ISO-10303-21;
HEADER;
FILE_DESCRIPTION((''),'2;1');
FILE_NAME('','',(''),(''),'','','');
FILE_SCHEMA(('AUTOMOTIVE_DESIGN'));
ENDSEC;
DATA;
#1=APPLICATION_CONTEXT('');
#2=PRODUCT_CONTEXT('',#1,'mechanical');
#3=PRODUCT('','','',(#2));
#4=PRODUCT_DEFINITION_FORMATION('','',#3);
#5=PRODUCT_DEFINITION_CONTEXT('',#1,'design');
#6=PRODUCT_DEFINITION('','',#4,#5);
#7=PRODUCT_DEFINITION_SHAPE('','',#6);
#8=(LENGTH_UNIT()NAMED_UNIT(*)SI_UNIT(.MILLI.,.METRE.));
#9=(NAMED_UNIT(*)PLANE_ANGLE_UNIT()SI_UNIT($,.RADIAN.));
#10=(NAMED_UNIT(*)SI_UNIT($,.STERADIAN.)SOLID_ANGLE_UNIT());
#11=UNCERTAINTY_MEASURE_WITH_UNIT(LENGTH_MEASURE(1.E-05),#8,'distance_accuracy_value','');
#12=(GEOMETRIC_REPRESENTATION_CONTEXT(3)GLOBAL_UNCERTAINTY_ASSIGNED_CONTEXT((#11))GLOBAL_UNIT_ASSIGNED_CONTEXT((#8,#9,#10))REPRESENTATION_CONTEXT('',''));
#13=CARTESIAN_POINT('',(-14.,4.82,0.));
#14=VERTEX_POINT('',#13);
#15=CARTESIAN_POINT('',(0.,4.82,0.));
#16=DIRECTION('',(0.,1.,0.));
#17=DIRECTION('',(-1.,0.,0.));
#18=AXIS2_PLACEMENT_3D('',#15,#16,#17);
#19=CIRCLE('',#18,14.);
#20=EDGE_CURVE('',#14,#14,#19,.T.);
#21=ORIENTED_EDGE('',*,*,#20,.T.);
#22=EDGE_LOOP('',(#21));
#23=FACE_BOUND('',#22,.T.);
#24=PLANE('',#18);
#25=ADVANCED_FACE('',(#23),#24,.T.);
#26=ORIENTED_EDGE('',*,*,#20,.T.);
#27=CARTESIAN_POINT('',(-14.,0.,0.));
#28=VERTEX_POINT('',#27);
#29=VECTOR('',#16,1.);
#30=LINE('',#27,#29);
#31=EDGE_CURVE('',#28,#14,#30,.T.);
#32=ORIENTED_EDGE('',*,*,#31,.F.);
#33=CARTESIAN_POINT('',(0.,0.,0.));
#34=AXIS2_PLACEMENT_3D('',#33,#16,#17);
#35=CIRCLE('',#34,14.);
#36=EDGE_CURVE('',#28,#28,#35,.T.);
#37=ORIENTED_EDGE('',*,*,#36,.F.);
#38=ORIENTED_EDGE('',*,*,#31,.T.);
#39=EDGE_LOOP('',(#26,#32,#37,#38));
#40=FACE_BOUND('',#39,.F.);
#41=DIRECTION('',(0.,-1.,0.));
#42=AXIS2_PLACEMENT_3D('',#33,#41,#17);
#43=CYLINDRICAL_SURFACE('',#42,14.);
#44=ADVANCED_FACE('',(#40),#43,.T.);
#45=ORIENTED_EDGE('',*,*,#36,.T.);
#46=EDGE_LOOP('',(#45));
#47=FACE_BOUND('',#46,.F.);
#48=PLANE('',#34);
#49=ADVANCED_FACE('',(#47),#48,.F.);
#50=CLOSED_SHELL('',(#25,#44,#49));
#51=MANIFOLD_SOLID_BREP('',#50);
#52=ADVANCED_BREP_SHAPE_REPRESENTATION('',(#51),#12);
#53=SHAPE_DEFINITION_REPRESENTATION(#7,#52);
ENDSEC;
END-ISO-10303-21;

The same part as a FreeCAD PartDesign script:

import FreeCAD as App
import Part
import Sketcher

V = App.Vector
Q = App.Units.Quantity

doc = App.newDocument("Part")
body = doc.addObject("PartDesign::Body", "Body")

# Sketch on XZ plane
sketch1 = doc.addObject("Sketcher::SketchObject", "Sketch")
body.addObject(sketch1)
sketch1.AttachmentSupport = (doc.XZ_Plane, [""])
sketch1.MapMode = "FlatFace"
sketch1.addGeometry(Part.Circle(V(0, 0, 0), V(0, 0, 1), 14), False)
sketch1.addConstraint(Sketcher.Constraint("Coincident", 0, 3, -1, 1))
sketch1.addConstraint(Sketcher.Constraint("Diameter", 0, Q("28 mm")))
pad1 = doc.addObject("PartDesign::Pad", "Pad")
body.addObject(pad1)
pad1.Profile = sketch1
pad1.Length = 4.82
pad1.Reversed = True

doc.recompute()
